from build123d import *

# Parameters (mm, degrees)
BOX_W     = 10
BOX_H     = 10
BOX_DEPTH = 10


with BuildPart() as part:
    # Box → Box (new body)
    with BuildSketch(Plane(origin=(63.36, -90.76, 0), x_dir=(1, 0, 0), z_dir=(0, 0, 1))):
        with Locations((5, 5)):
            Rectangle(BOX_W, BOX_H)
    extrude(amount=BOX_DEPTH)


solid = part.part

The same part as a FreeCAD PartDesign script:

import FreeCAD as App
import Part
import Sketcher
from FreeCAD import Vector
Q = App.Units.Quantity

doc = App.newDocument("Part")
body = doc.addObject("PartDesign::Body", "Body")

# Sketch on XY plane
sketch1 = body.newObject("Sketcher::SketchObject", "Sketch")
sketch1.AttachmentSupport = (doc.getObject("XY_Plane"), [""])
sketch1.MapMode = "FlatFace"
sketch1.addGeometry([
    Part.LineSegment(Vector(63, -81, 0), Vector(63, -91, 0)),
    Part.LineSegment(Vector(63, -91, 0), Vector(73, -91, 0)),
    Part.LineSegment(Vector(73, -91, 0), Vector(73, -81, 0)),
    Part.LineSegment(Vector(73, -81, 0), Vector(63, -81, 0)),
], False)
sketch1.addConstraint([
    Sketcher.Constraint("Coincident", 0, 2, 1, 1),
    Sketcher.Constraint("Coincident", 1, 2, 2, 1),
    Sketcher.Constraint("Coincident", 2, 2, 3, 1),
    Sketcher.Constraint("Coincident", 3, 2, 0, 1),
    Sketcher.Constraint("Vertical", 0),
    Sketcher.Constraint("Horizontal", 1),
    Sketcher.Constraint("Vertical", 2),
    Sketcher.Constraint("Horizontal", 3),
    Sketcher.Constraint("Equal", 3, 0),
    Sketcher.Constraint("DistanceX", 1, 1, 1, 2, Q("10 mm")),
    Sketcher.Constraint("DistanceX", -1, 1, 0, 2, Q("63.36 mm")),
    Sketcher.Constraint("DistanceY", 0, 2, -1, 1, Q("90.76 mm")),
])
pad1 = body.newObject("PartDesign::Pad", "Pad")
pad1.Profile = sketch1
pad1.Length = 10

doc.recompute()
